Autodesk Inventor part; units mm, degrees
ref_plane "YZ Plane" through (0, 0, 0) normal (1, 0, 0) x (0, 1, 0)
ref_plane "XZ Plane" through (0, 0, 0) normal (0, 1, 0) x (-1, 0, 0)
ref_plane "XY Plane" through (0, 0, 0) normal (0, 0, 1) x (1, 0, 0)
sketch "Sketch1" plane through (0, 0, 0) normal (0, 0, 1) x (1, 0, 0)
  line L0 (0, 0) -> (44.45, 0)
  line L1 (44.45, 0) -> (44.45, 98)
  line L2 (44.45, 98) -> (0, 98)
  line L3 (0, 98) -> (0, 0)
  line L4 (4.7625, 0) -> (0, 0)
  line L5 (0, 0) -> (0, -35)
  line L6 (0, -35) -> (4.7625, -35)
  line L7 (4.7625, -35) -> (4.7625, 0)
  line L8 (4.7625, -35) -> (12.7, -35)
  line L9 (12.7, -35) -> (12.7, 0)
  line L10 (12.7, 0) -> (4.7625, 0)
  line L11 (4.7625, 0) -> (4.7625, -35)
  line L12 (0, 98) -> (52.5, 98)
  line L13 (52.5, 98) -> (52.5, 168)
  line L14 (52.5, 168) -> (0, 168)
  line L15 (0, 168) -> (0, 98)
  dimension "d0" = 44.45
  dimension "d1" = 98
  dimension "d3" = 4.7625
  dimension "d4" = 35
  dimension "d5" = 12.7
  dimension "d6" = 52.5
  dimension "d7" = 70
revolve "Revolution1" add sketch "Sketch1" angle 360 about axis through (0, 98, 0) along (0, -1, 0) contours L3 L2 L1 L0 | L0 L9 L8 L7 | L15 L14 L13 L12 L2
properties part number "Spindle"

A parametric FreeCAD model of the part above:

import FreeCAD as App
import Part
import Sketcher
from FreeCAD import Vector


def add_polygon(sketch, points):
    """Adds a closed chain of lines whose ends are joined by coincident constraints."""
    first, n = sketch.GeometryCount, len(points)
    for a, b in zip(points, points[1:] + points[:1]):
        sketch.addGeometry(Part.LineSegment(App.Vector(*a, 0), App.Vector(*b, 0)), False)
    for i in range(n):
        sketch.addConstraint(Sketcher.Constraint("Coincident", first + i, 2, first + (i + 1) % n, 1))

doc = App.newDocument("Part")
body = doc.addObject("PartDesign::Body", "Body")

sketch1 = body.newObject("Sketcher::SketchObject", "Sketch")
sketch1.AttachmentSupport = (doc.getObject("XY_Plane"), [""])
sketch1.MapMode = "FlatFace"
add_polygon(sketch1, [(0, 0), (4.7625, 0), (4.7625, -35), (12.7, -35), (12.7, 0), (44.45, 0), (44.45, 98), (52.5, 98), (52.5, 168), (0, 168)])
sketch1.addConstraint([
    Sketcher.Constraint("Horizontal", 0),
    Sketcher.Constraint("Vertical", 1),
    Sketcher.Constraint("Horizontal", 2),
    Sketcher.Constraint("Vertical", 3),
    Sketcher.Constraint("Horizontal", 4),
    Sketcher.Constraint("Vertical", 5),
    Sketcher.Constraint("Horizontal", 6),
    Sketcher.Constraint("Vertical", 7),
    Sketcher.Constraint("Horizontal", 8),
    Sketcher.Constraint("Vertical", 9),
    Sketcher.Constraint("Coincident", 9, 2, -1, 1),
    Sketcher.Constraint("PointOnObject", 3, 2, -1),
    Sketcher.Constraint("DistanceY", 1, 2, 1, 1, 35.0),
    Sketcher.Constraint("DistanceY", 5, 1, 5, 2, 98.0),
    Sketcher.Constraint("DistanceY", 7, 1, 7, 2, 70.0),
    Sketcher.Constraint("DistanceX", 8, 2, 8, 1, 52.5),
    Sketcher.Constraint("DistanceX", -1, 1, 2, 2, 12.7),
    Sketcher.Constraint("DistanceX", -1, 1, 4, 2, 44.45),
    Sketcher.Constraint("DistanceX", 0, 1, 0, 2, 4.7625),
])
revolution = body.newObject("PartDesign::Revolution", "Revolution")
revolution.Profile = sketch1
revolution.ReferenceAxis = (sketch1, ["V_Axis"])
revolution.Angle = 360

doc.recompute()
